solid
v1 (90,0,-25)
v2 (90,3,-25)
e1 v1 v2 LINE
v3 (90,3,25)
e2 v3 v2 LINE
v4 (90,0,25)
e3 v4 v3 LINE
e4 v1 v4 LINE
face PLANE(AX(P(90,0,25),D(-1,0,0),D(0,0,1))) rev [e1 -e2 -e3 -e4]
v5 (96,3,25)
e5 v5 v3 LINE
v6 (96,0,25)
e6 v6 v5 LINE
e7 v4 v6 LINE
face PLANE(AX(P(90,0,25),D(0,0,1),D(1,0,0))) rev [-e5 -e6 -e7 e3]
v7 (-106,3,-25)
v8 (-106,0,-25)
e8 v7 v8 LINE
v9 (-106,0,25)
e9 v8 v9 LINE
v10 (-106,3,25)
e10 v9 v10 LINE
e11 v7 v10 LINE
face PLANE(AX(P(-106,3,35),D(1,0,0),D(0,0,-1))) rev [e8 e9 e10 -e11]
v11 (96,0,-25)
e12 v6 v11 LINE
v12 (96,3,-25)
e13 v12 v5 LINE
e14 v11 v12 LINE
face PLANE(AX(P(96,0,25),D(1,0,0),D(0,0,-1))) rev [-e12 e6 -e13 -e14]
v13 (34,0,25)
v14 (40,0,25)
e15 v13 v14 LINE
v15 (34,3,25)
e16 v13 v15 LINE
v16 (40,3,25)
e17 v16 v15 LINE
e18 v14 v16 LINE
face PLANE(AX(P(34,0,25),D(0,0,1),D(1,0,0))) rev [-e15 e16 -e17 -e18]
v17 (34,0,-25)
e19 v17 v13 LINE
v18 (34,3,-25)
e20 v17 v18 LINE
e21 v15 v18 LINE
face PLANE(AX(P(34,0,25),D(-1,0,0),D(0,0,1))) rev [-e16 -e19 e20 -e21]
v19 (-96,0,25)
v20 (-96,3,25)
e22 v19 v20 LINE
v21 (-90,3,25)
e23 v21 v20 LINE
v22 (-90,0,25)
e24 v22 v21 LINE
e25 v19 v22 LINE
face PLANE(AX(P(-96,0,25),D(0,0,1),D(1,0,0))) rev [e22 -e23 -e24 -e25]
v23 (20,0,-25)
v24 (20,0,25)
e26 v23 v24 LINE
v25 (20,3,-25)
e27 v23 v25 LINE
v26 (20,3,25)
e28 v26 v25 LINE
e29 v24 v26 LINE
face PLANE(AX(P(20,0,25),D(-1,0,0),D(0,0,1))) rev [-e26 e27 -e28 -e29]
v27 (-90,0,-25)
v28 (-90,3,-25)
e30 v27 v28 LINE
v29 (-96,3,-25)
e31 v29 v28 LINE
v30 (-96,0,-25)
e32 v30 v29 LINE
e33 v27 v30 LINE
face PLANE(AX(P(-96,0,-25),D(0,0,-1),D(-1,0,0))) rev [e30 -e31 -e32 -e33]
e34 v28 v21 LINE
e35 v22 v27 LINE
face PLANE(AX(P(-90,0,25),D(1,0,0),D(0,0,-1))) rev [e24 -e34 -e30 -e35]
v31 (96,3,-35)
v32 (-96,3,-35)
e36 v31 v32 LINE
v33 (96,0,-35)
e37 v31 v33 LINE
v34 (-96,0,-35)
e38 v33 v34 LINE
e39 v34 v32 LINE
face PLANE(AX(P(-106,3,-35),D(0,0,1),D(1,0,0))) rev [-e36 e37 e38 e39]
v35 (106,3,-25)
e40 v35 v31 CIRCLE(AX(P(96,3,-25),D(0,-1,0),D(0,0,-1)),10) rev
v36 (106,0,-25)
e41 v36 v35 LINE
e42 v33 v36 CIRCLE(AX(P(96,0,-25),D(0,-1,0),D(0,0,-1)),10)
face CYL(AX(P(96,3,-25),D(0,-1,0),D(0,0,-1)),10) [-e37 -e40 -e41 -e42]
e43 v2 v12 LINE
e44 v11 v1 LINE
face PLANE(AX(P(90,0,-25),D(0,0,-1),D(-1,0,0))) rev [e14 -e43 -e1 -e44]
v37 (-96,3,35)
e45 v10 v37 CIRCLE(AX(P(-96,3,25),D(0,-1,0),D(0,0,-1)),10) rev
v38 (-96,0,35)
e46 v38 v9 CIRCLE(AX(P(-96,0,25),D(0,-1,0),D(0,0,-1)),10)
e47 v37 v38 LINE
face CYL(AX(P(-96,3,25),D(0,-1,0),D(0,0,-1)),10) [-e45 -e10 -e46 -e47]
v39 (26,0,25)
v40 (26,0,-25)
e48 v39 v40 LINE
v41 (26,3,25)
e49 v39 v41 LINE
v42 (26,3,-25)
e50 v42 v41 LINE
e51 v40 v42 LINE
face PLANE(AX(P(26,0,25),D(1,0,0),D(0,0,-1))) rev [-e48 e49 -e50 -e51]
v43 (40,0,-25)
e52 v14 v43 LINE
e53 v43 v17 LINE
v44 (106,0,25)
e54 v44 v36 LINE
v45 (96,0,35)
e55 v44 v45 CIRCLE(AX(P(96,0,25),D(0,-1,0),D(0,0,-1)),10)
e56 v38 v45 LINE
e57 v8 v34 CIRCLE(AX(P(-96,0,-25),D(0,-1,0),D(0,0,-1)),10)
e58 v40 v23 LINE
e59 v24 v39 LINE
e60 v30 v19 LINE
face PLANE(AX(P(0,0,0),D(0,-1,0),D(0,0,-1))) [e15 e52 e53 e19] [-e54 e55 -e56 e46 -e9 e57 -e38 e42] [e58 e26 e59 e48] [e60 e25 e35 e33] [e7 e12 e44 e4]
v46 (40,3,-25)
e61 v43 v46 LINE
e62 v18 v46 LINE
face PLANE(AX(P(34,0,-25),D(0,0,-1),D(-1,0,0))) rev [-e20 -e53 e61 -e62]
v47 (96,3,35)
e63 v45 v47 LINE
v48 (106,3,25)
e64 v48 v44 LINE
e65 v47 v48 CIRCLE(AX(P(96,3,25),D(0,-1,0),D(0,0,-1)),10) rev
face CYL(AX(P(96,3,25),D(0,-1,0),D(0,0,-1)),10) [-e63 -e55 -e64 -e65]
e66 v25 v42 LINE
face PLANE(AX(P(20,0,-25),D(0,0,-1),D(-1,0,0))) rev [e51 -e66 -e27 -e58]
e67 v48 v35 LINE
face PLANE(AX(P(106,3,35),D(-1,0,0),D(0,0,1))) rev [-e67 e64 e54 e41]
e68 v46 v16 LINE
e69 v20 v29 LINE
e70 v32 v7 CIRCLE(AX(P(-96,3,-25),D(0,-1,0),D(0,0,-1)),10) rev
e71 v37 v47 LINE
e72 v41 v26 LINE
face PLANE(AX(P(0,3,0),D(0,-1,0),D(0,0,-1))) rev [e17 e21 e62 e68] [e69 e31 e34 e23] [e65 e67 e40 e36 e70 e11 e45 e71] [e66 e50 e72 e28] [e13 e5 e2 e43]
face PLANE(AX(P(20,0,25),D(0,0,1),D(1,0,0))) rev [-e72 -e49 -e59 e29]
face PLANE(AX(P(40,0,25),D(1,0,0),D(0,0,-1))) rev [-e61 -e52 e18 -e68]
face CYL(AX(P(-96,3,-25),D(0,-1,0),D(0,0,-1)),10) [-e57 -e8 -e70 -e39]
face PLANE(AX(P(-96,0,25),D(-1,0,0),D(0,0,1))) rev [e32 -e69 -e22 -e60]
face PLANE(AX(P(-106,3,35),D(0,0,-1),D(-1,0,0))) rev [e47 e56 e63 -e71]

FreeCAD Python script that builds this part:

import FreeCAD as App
import Part
import Sketcher
Q = App.Units.Quantity


def edges_at(feature, points):
    """Names of the edges that pass closest to the given points."""
    edges = feature.Shape.Edges
    near = lambda p: min(range(len(edges)), key=lambda i: edges[i].distToShape(Part.Vertex(*p))[0])
    return sorted({f"Edge{near(p) + 1}" for p in points})

doc = App.newDocument("Part")
params = doc.addObject("Spreadsheet::Sheet", "Params")
for row, (alias, value) in enumerate([
    ("sketch1_width", "212 mm"),
    ("sketch1_height", "70 mm"),
    ("pad1_length", "3 mm"),
    ("sketch2_width", "6 mm"),
    ("sketch2_height", "50 mm"),
    ("fillet_radius", "10 mm"),
], start=1):
    params.set(f"A{row}", alias)
    params.set(f"B{row}", "=" + value)
    params.setAlias(f"B{row}", alias)

body = doc.addObject("PartDesign::Body", "Body")

# Sketch on XZ plane
sketch1 = doc.addObject("Sketcher::SketchObject", "Sketch")
body.addObject(sketch1)
sketch1.AttachmentSupport = (doc.XZ_Plane, [""])
sketch1.MapMode = "FlatFace"
sketch1.addGeometry(Part.LineSegment(App.Vector(-106, -35, 0), App.Vector(-106, 35, 0)), False)
sketch1.addGeometry(Part.LineSegment(App.Vector(-106, 35, 0), App.Vector(106, 35, 0)), False)
sketch1.addGeometry(Part.LineSegment(App.Vector(106, 35, 0), App.Vector(106, -35, 0)), False)
sketch1.addGeometry(Part.LineSegment(App.Vector(106, -35, 0), App.Vector(-106, -35, 0)), False)
sketch1.addConstraint(Sketcher.Constraint("Coincident", 0, 2, 1, 1))
sketch1.addConstraint(Sketcher.Constraint("Coincident", 1, 2, 2, 1))
sketch1.addConstraint(Sketcher.Constraint("Coincident", 2, 2, 3, 1))
sketch1.addConstraint(Sketcher.Constraint("Coincident", 3, 2, 0, 1))
sketch1.addConstraint(Sketcher.Constraint("Vertical", 0))
sketch1.addConstraint(Sketcher.Constraint("Horizontal", 1))
sketch1.addConstraint(Sketcher.Constraint("Vertical", 2))
sketch1.addConstraint(Sketcher.Constraint("Horizontal", 3))
sketch1.addConstraint(Sketcher.Constraint("Symmetric", 0, 2, 2, 2, -1, 1))
sketch1.addConstraint(Sketcher.Constraint("DistanceX", 1, 1, 1, 2, Q("212 mm")))
sketch1.addConstraint(Sketcher.Constraint("DistanceY", 0, 1, 0, 2, Q("70 mm")))
sketch1.setExpression("Constraints[9]", "Params.sketch1_width")
sketch1.setExpression("Constraints[10]", "Params.sketch1_height")
pad1 = doc.addObject("PartDesign::Pad", "Pad")
body.addObject(pad1)
pad1.Profile = sketch1
pad1.setExpression("Length", "Params.pad1_length")
pad1.Reversed = True

# Sketch on XZ plane
sketch2 = doc.addObject("Sketcher::SketchObject", "Sketch001")
body.addObject(sketch2)
sketch2.AttachmentSupport = (doc.XZ_Plane, [""])
sketch2.MapMode = "FlatFace"
sketch2.AttachmentOffset = App.Placement(App.Vector(0, 0, -3), App.Rotation())
sketch2.addGeometry(Part.LineSegment(App.Vector(20, -25, 0), App.Vector(20, 25, 0)), False)
sketch2.addGeometry(Part.LineSegment(App.Vector(20, 25, 0), App.Vector(26, 25, 0)), False)
sketch2.addGeometry(Part.LineSegment(App.Vector(26, 25, 0), App.Vector(26, -25, 0)), False)
sketch2.addGeometry(Part.LineSegment(App.Vector(26, -25, 0), App.Vector(20, -25, 0)), False)
sketch2.addGeometry(Part.LineSegment(App.Vector(-96, -25, 0), App.Vector(-96, 25, 0)), False)
sketch2.addGeometry(Part.LineSegment(App.Vector(-96, 25, 0), App.Vector(-90, 25, 0)), False)
sketch2.addGeometry(Part.LineSegment(App.Vector(-90, 25, 0), App.Vector(-90, -25, 0)), False)
sketch2.addGeometry(Part.LineSegment(App.Vector(-90, -25, 0), App.Vector(-96, -25, 0)), False)
sketch2.addGeometry(Part.LineSegment(App.Vector(34, -25, 0), App.Vector(34, 25, 0)), False)
sketch2.addGeometry(Part.LineSegment(App.Vector(34, 25, 0), App.Vector(40, 25, 0)), False)
sketch2.addGeometry(Part.LineSegment(App.Vector(40, 25, 0), App.Vector(40, -25, 0)), False)
sketch2.addGeometry(Part.LineSegment(App.Vector(40, -25, 0), App.Vector(34, -25, 0)), False)
sketch2.addGeometry(Part.LineSegment(App.Vector(90, -25, 0), App.Vector(90, 25, 0)), False)
sketch2.addGeometry(Part.LineSegment(App.Vector(90, 25, 0), App.Vector(96, 25, 0)), False)
sketch2.addGeometry(Part.LineSegment(App.Vector(96, 25, 0), App.Vector(96, -25, 0)), False)
sketch2.addGeometry(Part.LineSegment(App.Vector(96, -25, 0), App.Vector(90, -25, 0)), False)
sketch2.addConstraint(Sketcher.Constraint("Coincident", 0, 2, 1, 1))
sketch2.addConstraint(Sketcher.Constraint("Coincident", 1, 2, 2, 1))
sketch2.addConstraint(Sketcher.Constraint("Coincident", 2, 2, 3, 1))
sketch2.addConstraint(Sketcher.Constraint("Coincident", 3, 2, 0, 1))
sketch2.addConstraint(Sketcher.Constraint("Coincident", 4, 2, 5, 1))
sketch2.addConstraint(Sketcher.Constraint("Coincident", 5, 2, 6, 1))
sketch2.addConstraint(Sketcher.Constraint("Coincident", 6, 2, 7, 1))
sketch2.addConstraint(Sketcher.Constraint("Coincident", 7, 2, 4, 1))
sketch2.addConstraint(Sketcher.Constraint("Coincident", 8, 2, 9, 1))
sketch2.addConstraint(Sketcher.Constraint("Coincident", 9, 2, 10, 1))
sketch2.addConstraint(Sketcher.Constraint("Coincident", 10, 2, 11, 1))
sketch2.addConstraint(Sketcher.Constraint("Coincident", 11, 2, 8, 1))
sketch2.addConstraint(Sketcher.Constraint("Coincident", 12, 2, 13, 1))
sketch2.addConstraint(Sketcher.Constraint("Coincident", 13, 2, 14, 1))
sketch2.addConstraint(Sketcher.Constraint("Coincident", 14, 2, 15, 1))
sketch2.addConstraint(Sketcher.Constraint("Coincident", 15, 2, 12, 1))
sketch2.addConstraint(Sketcher.Constraint("Vertical", 0))
sketch2.addConstraint(Sketcher.Constraint("Horizontal", 1))
sketch2.addConstraint(Sketcher.Constraint("Vertical", 2))
sketch2.addConstraint(Sketcher.Constraint("Horizontal", 3))
sketch2.addConstraint(Sketcher.Constraint("Vertical", 4))
sketch2.addConstraint(Sketcher.Constraint("Horizontal", 5))
sketch2.addConstraint(Sketcher.Constraint("Vertical", 6))
sketch2.addConstraint(Sketcher.Constraint("Horizontal", 7))
sketch2.addConstraint(Sketcher.Constraint("Vertical", 8))
sketch2.addConstraint(Sketcher.Constraint("Horizontal", 9))
sketch2.addConstraint(Sketcher.Constraint("Vertical", 10))
sketch2.addConstraint(Sketcher.Constraint("Horizontal", 11))
sketch2.addConstraint(Sketcher.Constraint("Vertical", 12))
sketch2.addConstraint(Sketcher.Constraint("Horizontal", 13))
sketch2.addConstraint(Sketcher.Constraint("Vertical", 14))
sketch2.addConstraint(Sketcher.Constraint("Horizontal", 15))
sketch2.addConstraint(Sketcher.Constraint("Symmetric", 6, 2, 12, 2, -1, 1))
sketch2.addConstraint(Sketcher.Constraint("Symmetric", 4, 2, 14, 2, -1, 1))
sketch2.addConstraint(Sketcher.Constraint("Horizontal", 1, 2, 4, 2))
sketch2.addConstraint(Sketcher.Constraint("Horizontal", 3, 2, 6, 2))
sketch2.addConstraint(Sketcher.Constraint("Horizontal", 5, 2, 8, 2))
sketch2.addConstraint(Sketcher.Constraint("Horizontal", 7, 2, 10, 2))
sketch2.addConstraint(Sketcher.Constraint("Horizontal", 9, 2, 12, 2))
sketch2.addConstraint(Sketcher.Constraint("Equal", 3, 5))
sketch2.addConstraint(Sketcher.Constraint("Equal", 7, 9))
sketch2.addConstraint(Sketcher.Constraint("DistanceX", 1, 1, 1, 2, Q("6 mm")))
sketch2.addConstraint(Sketcher.Constraint("DistanceY", 0, 1, 0, 2, Q("50 mm")))
sketch2.addConstraint(Sketcher.Constraint("DistanceX", -1, 1, 0, 2, Q("20 mm")))
sketch2.addConstraint(Sketcher.Constraint("DistanceX", 4, 2, -1, 1, Q("96 mm")))
sketch2.addConstraint(Sketcher.Constraint("DistanceX", -1, 1, 8, 2, Q("34 mm")))
sketch2.setExpression("Constraints[41]", "Params.sketch2_width")
sketch2.setExpression("Constraints[42]", "Params.sketch2_height")
pocket1 = doc.addObject("PartDesign::Pocket", "Pocket")
body.addObject(pocket1)
pocket1.Profile = sketch2
pocket1.Type = "ThroughAll"
pocket1.Midplane = True
doc.recompute()

fillet = doc.addObject("PartDesign::Fillet", "Fillet")
body.addObject(fillet)
fillet.Base = (pocket1, edges_at(pocket1, [
    (106, 1.5, 35),
    (-106, 1.5, 35),
    (-106, 1.5, -35),
    (106, 1.5, -35),
]))
fillet.setExpression("Radius", "Params.fillet_radius")

doc.recompute()
